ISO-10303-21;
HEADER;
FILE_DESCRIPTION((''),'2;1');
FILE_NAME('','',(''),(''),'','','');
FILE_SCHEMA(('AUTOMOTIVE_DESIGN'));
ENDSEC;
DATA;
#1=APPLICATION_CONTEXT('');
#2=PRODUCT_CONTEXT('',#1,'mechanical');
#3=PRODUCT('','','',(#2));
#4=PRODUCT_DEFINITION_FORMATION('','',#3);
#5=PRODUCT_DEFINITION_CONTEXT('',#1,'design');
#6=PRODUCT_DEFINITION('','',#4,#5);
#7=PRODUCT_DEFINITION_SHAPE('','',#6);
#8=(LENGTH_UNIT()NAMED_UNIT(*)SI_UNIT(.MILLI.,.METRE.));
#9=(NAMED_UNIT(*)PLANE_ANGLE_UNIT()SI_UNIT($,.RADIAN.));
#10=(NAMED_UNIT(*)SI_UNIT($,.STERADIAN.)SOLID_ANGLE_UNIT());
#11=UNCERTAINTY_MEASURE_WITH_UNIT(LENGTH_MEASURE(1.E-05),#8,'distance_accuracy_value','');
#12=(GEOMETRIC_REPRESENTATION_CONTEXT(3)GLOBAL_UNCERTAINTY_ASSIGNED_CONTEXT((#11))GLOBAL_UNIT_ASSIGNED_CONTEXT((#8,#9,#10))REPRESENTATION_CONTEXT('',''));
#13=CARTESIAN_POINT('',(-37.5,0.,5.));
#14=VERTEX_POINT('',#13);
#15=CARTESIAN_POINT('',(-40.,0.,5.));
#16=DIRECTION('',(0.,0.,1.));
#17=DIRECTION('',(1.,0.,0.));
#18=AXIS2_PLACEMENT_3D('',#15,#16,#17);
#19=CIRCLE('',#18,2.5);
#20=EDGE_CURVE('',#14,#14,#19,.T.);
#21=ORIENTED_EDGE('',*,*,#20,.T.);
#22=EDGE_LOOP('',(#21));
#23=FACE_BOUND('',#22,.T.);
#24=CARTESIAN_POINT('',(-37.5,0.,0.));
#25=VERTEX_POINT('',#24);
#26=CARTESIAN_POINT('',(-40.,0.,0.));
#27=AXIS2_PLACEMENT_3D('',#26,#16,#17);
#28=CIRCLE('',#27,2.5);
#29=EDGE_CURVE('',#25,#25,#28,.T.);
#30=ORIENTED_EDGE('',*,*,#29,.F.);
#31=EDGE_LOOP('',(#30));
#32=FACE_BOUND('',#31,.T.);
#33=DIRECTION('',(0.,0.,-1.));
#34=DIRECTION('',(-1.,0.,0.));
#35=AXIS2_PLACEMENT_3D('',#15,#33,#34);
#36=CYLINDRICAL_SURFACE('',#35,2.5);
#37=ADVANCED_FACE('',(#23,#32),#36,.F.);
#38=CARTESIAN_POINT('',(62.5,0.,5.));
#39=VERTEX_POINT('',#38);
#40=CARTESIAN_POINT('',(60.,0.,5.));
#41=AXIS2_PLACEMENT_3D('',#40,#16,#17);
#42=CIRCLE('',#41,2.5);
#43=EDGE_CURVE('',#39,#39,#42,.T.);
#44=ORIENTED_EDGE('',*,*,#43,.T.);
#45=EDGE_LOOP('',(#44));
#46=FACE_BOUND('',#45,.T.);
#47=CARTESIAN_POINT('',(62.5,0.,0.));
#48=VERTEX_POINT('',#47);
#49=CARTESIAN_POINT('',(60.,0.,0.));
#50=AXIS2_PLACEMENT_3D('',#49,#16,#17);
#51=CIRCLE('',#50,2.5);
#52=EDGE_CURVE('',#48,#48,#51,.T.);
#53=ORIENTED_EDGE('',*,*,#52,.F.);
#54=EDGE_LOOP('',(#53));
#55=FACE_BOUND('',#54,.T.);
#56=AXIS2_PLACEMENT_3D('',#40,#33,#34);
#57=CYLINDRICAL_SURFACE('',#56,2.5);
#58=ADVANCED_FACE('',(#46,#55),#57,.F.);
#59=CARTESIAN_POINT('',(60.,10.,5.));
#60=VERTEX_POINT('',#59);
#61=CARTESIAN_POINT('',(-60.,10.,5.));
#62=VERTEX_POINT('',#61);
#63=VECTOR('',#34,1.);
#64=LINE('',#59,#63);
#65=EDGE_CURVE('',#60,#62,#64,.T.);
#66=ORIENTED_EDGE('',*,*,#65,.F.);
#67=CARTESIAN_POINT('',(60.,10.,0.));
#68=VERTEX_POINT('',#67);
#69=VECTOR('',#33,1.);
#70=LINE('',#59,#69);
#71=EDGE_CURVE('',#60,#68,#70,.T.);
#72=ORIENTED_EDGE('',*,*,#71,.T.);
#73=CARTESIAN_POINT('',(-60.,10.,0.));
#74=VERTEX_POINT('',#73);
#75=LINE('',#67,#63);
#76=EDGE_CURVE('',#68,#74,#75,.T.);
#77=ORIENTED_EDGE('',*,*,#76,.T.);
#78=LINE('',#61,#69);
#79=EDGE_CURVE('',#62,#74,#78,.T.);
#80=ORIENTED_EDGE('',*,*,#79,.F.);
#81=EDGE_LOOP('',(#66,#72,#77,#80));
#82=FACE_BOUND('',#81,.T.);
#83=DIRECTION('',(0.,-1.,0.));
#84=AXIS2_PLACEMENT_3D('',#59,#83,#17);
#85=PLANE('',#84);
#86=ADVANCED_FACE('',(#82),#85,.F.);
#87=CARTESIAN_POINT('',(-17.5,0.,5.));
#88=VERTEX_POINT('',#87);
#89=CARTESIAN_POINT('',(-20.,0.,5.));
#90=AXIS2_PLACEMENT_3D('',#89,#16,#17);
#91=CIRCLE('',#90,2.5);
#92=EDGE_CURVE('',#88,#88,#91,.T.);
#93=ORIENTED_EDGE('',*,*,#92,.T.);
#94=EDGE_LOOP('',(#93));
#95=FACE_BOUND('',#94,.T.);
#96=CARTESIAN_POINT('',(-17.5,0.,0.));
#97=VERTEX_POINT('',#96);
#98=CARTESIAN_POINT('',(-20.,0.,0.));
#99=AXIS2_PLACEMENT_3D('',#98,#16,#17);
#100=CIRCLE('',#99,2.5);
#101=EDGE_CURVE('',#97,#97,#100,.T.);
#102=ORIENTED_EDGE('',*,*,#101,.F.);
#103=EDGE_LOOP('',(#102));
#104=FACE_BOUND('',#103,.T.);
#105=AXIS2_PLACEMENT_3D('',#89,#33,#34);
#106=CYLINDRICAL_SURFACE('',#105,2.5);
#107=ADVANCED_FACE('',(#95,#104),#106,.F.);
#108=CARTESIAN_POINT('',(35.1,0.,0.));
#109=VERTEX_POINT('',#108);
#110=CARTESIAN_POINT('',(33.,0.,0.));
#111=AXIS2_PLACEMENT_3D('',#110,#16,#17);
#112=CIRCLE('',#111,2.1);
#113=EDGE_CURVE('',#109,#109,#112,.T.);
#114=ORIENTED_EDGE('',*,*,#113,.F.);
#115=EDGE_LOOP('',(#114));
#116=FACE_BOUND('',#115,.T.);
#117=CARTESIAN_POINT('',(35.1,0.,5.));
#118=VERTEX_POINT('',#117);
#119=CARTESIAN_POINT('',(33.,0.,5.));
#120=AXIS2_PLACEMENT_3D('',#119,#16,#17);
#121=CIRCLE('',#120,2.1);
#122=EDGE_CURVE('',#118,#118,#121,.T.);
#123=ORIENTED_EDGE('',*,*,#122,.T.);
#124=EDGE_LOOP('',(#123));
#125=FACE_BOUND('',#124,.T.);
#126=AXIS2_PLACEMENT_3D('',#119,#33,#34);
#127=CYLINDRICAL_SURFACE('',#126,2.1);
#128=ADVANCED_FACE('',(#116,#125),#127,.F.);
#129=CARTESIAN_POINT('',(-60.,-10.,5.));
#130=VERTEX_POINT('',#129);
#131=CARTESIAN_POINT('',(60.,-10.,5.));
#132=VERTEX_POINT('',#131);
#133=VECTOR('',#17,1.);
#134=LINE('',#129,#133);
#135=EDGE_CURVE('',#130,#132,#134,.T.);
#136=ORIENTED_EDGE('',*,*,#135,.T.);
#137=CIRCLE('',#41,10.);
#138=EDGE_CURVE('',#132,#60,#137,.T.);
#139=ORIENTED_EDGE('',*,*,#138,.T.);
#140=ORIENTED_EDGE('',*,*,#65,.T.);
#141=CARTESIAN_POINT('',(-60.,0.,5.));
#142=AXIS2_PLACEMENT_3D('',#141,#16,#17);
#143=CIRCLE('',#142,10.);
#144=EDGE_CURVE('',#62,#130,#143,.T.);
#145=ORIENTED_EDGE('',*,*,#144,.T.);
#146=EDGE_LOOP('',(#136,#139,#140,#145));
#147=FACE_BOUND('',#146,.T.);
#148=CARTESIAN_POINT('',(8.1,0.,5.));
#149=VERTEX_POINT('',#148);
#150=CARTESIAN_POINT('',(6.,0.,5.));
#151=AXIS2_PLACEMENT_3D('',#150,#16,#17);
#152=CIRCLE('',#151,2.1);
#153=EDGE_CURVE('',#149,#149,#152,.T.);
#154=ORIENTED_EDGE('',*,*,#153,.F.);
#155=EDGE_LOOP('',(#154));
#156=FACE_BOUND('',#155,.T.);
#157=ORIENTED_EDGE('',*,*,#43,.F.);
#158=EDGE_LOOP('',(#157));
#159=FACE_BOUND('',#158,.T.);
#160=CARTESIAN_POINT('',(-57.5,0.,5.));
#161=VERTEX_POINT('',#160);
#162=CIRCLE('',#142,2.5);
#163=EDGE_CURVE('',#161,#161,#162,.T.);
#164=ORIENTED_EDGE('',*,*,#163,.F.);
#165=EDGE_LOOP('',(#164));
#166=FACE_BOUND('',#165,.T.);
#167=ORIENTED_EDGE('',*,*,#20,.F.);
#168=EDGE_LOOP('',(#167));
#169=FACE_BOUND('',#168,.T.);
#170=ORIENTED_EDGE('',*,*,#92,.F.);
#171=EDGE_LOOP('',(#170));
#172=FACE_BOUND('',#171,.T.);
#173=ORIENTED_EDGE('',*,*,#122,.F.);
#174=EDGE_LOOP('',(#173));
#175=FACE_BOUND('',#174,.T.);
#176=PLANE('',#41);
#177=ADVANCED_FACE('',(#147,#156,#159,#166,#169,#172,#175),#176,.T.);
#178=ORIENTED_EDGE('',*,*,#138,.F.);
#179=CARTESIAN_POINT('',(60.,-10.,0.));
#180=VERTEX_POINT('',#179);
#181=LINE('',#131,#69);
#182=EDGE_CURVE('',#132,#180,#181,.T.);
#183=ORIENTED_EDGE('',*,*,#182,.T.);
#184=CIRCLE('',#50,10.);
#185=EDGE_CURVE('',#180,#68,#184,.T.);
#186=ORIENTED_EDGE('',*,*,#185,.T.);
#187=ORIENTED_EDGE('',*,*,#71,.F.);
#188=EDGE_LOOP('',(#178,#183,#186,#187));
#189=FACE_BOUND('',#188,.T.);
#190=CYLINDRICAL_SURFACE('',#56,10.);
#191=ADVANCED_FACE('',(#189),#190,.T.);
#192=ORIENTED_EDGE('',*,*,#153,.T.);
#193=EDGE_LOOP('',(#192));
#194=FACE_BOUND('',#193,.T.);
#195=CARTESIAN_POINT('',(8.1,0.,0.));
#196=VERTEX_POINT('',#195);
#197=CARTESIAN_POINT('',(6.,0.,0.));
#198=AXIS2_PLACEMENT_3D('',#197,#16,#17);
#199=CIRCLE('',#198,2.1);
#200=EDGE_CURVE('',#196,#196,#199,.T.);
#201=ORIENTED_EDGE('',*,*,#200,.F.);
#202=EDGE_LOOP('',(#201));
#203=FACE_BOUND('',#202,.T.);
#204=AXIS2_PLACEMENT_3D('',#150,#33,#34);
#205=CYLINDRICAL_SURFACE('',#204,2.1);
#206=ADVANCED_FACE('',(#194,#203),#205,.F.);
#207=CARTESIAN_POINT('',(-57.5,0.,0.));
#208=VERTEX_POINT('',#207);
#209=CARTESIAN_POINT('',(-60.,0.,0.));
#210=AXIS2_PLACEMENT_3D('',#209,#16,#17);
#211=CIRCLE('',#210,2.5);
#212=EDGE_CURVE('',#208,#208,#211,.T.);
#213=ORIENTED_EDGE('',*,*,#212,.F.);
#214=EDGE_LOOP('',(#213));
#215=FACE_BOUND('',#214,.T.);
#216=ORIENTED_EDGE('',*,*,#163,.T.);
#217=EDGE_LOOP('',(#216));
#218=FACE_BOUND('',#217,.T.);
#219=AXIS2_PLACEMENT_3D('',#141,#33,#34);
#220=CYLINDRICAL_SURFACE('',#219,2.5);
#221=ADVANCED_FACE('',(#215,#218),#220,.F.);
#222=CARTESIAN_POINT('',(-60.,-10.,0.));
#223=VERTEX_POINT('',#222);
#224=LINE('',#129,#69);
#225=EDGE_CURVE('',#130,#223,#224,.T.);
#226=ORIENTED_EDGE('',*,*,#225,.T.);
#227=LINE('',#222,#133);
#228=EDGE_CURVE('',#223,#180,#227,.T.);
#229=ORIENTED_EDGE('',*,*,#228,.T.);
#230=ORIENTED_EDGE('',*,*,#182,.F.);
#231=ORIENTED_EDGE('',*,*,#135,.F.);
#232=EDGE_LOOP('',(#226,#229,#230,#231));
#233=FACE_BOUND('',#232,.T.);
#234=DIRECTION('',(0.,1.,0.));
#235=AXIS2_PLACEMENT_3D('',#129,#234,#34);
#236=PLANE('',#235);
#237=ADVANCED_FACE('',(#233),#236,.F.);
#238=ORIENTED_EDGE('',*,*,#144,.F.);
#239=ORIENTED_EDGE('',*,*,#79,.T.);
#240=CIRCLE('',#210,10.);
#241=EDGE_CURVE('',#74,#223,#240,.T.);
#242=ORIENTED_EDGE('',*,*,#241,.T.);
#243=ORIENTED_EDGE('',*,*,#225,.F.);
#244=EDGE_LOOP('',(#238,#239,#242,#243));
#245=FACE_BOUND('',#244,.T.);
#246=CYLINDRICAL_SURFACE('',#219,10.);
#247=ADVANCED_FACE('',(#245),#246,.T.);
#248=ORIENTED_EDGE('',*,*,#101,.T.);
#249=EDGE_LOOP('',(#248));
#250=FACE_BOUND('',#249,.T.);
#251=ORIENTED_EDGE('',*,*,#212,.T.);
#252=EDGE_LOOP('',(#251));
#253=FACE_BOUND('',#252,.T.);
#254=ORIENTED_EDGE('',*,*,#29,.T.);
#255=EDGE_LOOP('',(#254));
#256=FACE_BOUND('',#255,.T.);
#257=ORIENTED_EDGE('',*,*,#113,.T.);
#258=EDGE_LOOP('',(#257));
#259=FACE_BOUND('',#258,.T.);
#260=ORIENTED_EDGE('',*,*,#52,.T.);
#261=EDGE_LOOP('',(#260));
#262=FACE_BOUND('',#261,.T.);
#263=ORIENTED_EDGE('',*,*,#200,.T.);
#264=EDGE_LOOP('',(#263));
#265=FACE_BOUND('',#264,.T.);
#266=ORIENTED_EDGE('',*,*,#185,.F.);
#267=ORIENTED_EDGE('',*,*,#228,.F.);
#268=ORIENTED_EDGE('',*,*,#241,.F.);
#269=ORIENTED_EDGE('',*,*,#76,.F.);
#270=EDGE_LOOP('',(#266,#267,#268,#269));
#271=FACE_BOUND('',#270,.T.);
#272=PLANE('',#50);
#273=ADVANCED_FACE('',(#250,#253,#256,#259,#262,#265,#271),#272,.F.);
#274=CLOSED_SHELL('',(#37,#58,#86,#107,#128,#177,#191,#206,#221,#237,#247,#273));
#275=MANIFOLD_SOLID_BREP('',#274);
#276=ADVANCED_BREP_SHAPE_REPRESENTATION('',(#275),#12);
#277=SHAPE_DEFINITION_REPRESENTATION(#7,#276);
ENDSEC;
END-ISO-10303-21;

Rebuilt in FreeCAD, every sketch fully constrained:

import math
import FreeCAD as App
import Part
import Sketcher
from FreeCAD import Vector
Q = App.Units.Quantity

doc = App.newDocument("Part")
body = doc.addObject("PartDesign::Body", "Body")

# Sketch on XY plane
sketch1 = body.newObject("Sketcher::SketchObject", "Sketch")
sketch1.AttachmentSupport = (doc.getObject("XY_Plane"), [""])
sketch1.MapMode = "FlatFace"
sketch1.addGeometry(Part.LineSegment(Vector(60, 10, 0), Vector(-60, 10, 0)), False)
sketch1.addGeometry(Part.ArcOfCircle(Part.Circle(Vector(-60, 0, 0), Vector(0, 0, 1), 10), math.radians(90), math.radians(270)), False)
sketch1.addGeometry(Part.LineSegment(Vector(-60, -10, 0), Vector(60, -10, 0)), False)
sketch1.addGeometry(Part.ArcOfCircle(Part.Circle(Vector(60, 0, 0), Vector(0, 0, 1), 10), math.radians(-90), math.radians(90)), False)
sketch1.addGeometry(Part.Circle(Vector(-60, 0, 0), Vector(0, 0, 1), 2.5), False)
sketch1.addGeometry(Part.Circle(Vector(-40, 0, 0), Vector(0, 0, 1), 2.5), False)
sketch1.addGeometry(Part.Circle(Vector(-20, 0, 0), Vector(0, 0, 1), 2.5), False)
sketch1.addGeometry(Part.Circle(Vector(6, 0, 0), Vector(0, 0, 1), 2.1), False)
sketch1.addGeometry(Part.Circle(Vector(33, 0, 0), Vector(0, 0, 1), 2.1), False)
sketch1.addGeometry(Part.Circle(Vector(60, 0, 0), Vector(0, 0, 1), 2.5), False)
sketch1.addConstraint(Sketcher.Constraint("Tangent", 0, 2, 1, 1))
sketch1.addConstraint(Sketcher.Constraint("Tangent", 1, 2, 2, 1))
sketch1.addConstraint(Sketcher.Constraint("Tangent", 2, 2, 3, 1))
sketch1.addConstraint(Sketcher.Constraint("Tangent", 3, 2, 0, 1))
sketch1.addConstraint(Sketcher.Constraint("Horizontal", 0))
sketch1.addConstraint(Sketcher.Constraint("Horizontal", 2))
sketch1.addConstraint(Sketcher.Constraint("Coincident", 4, 3, 1, 3))
sketch1.addConstraint(Sketcher.Constraint("Coincident", 9, 3, 3, 3))
sketch1.addConstraint(Sketcher.Constraint("Equal", 4, 5))
sketch1.addConstraint(Sketcher.Constraint("Equal", 5, 6))
sketch1.addConstraint(Sketcher.Constraint("Equal", 7, 8))
sketch1.addConstraint(Sketcher.Constraint("Equal", 6, 9))
sketch1.addConstraint(Sketcher.Constraint("Symmetric", 1, 3, 3, 3, -1, 1))
sketch1.addConstraint(Sketcher.Constraint("PointOnObject", 5, 3, -1))
sketch1.addConstraint(Sketcher.Constraint("PointOnObject", 6, 3, -1))
sketch1.addConstraint(Sketcher.Constraint("PointOnObject", 7, 3, -1))
sketch1.addConstraint(Sketcher.Constraint("PointOnObject", 8, 3, -1))
sketch1.addConstraint(Sketcher.Constraint("Diameter", 4, Q("5 mm")))
sketch1.addConstraint(Sketcher.Constraint("Radius", 1, Q("10 mm")))
sketch1.addConstraint(Sketcher.Constraint("Diameter", 7, Q("4.2 mm")))
sketch1.addConstraint(Sketcher.Constraint("DistanceX", 0, 2, 0, 1, Q("120 mm")))
sketch1.addConstraint(Sketcher.Constraint("DistanceX", 5, 3, -1, 1, Q("40 mm")))
sketch1.addConstraint(Sketcher.Constraint("DistanceX", 6, 3, -1, 1, Q("20 mm")))
sketch1.addConstraint(Sketcher.Constraint("DistanceX", -1, 1, 7, 3, Q("6 mm")))
sketch1.addConstraint(Sketcher.Constraint("DistanceX", -1, 1, 8, 3, Q("33 mm")))
pad1 = body.newObject("PartDesign::Pad", "Pad")
pad1.Profile = sketch1
pad1.Length = 5

doc.recompute()
